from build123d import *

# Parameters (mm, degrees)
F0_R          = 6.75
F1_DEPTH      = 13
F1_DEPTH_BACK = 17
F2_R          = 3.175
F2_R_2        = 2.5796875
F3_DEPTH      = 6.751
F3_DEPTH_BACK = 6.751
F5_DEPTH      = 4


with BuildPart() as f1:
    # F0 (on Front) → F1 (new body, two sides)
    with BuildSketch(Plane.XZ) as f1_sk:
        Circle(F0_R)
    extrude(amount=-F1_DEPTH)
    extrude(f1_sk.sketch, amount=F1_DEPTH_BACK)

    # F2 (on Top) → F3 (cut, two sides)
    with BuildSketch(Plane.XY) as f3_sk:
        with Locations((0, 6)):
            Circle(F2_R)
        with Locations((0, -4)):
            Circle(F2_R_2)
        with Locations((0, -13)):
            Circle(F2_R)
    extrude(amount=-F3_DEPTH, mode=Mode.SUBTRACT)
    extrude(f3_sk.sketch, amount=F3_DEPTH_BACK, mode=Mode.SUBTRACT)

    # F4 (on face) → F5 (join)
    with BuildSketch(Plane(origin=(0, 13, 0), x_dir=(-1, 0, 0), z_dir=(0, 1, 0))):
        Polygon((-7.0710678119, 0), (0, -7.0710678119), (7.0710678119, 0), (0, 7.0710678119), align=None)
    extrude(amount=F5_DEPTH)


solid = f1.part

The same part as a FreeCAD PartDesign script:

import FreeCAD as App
import Part
import Sketcher
from FreeCAD import Vector


def add_polygon(sketch, points):
    """Adds a closed chain of lines whose ends are joined by coincident constraints."""
    first, n = sketch.GeometryCount, len(points)
    for a, b in zip(points, points[1:] + points[:1]):
        sketch.addGeometry(Part.LineSegment(App.Vector(*a, 0), App.Vector(*b, 0)), False)
    for i in range(n):
        sketch.addConstraint(Sketcher.Constraint("Coincident", first + i, 2, first + (i + 1) % n, 1))

doc = App.newDocument("Part")
params = doc.addObject("Spreadsheet::Sheet", "Params")
for row, (alias, value) in enumerate([
    ("sketch1_diameter", "13.5 mm"),
    ("pad1_length", "13 mm"),
    ("pad1_length2", "17 mm"),
    ("sketch2_diameter", "6.35 mm"),
    ("sketch3_length", "10 mm"),
    ("pad2_length", "4 mm"),
], start=1):
    params.set(f"A{row}", alias)
    params.set(f"B{row}", "=" + value)
    params.setAlias(f"B{row}", alias)

body = doc.addObject("PartDesign::Body", "Body")

sketch1 = body.newObject("Sketcher::SketchObject", "Sketch")
sketch1.AttachmentSupport = (doc.getObject("XZ_Plane"), [""])
sketch1.MapMode = "FlatFace"
sketch1.addGeometry(Part.Circle(Vector(0, 0, 0), Vector(0, 0, 1), 7), False)
sketch1.addConstraint([
    Sketcher.Constraint("Coincident", 0, 3, -1, 1),
    Sketcher.Constraint("Diameter", 0, 13.5),
])
sketch1.setExpression("Constraints[1]", "Params.sketch1_diameter")
pad1 = body.newObject("PartDesign::Pad", "Pad")
pad1.Profile = sketch1
pad1.Type = "TwoLengths"
pad1.setExpression("Length", "Params.pad1_length")
pad1.setExpression("Length2", "Params.pad1_length2")
pad1.Reversed = True

sketch2 = body.newObject("Sketcher::SketchObject", "Sketch001")
sketch2.AttachmentSupport = (doc.getObject("XY_Plane"), [""])
sketch2.MapMode = "FlatFace"
sketch2.addGeometry([
    Part.Circle(Vector(0, 6, 0), Vector(0, 0, 1), 3.2),
    Part.Circle(Vector(0, -4, 0), Vector(0, 0, 1), 2.6),
    Part.Circle(Vector(0, -13, 0), Vector(0, 0, 1), 3.2),
], False)
sketch2.addConstraint([
    Sketcher.Constraint("Equal", 0, 2),
    Sketcher.Constraint("PointOnObject", 0, 3, -2),
    Sketcher.Constraint("PointOnObject", 1, 3, -2),
    Sketcher.Constraint("PointOnObject", 2, 3, -2),
    Sketcher.Constraint("Diameter", 0, 6.35),
    Sketcher.Constraint("DistanceY", -1, 1, 0, 3, 6.0),
    Sketcher.Constraint("DistanceY", 1, 3, -1, 1, 4.0),
    Sketcher.Constraint("DistanceY", 2, 3, -1, 1, 13.0),
    Sketcher.Constraint("Diameter", 1, 5.159375),
])
sketch2.setExpression("Constraints[4]", "Params.sketch2_diameter")
pocket1 = body.newObject("PartDesign::Pocket", "Pocket")
pocket1.Profile = sketch2
pocket1.Type = "ThroughAll"
pocket1.Midplane = True

sketch3 = body.newObject("Sketcher::SketchObject", "Sketch002")
sketch3.AttachmentSupport = (doc.getObject("XZ_Plane"), [""])
sketch3.MapMode = "FlatFace"
sketch3.AttachmentOffset = App.Placement(Vector(0, 0, -13), App.Rotation())
add_polygon(sketch3, [(7, 0), (0, -7), (-7, 0), (0, 7)])
sketch3.addConstraint([
    Sketcher.Constraint("Symmetric", 0, 2, 2, 2, -1, 1),
    Sketcher.Constraint("Symmetric", 1, 2, 3, 2, -1, 1),
    Sketcher.Constraint("PointOnObject", 0, 2, -2),
    Sketcher.Constraint("PointOnObject", 1, 2, -1),
    Sketcher.Constraint("Perpendicular", 0, 1),
    Sketcher.Constraint("Distance", 0, 10.0),
])
sketch3.setExpression("Constraints[9]", "Params.sketch3_length")
pad2 = body.newObject("PartDesign::Pad", "Pad001")
pad2.Profile = sketch3
pad2.setExpression("Length", "Params.pad2_length")
pad2.Reversed = True

doc.recompute()
